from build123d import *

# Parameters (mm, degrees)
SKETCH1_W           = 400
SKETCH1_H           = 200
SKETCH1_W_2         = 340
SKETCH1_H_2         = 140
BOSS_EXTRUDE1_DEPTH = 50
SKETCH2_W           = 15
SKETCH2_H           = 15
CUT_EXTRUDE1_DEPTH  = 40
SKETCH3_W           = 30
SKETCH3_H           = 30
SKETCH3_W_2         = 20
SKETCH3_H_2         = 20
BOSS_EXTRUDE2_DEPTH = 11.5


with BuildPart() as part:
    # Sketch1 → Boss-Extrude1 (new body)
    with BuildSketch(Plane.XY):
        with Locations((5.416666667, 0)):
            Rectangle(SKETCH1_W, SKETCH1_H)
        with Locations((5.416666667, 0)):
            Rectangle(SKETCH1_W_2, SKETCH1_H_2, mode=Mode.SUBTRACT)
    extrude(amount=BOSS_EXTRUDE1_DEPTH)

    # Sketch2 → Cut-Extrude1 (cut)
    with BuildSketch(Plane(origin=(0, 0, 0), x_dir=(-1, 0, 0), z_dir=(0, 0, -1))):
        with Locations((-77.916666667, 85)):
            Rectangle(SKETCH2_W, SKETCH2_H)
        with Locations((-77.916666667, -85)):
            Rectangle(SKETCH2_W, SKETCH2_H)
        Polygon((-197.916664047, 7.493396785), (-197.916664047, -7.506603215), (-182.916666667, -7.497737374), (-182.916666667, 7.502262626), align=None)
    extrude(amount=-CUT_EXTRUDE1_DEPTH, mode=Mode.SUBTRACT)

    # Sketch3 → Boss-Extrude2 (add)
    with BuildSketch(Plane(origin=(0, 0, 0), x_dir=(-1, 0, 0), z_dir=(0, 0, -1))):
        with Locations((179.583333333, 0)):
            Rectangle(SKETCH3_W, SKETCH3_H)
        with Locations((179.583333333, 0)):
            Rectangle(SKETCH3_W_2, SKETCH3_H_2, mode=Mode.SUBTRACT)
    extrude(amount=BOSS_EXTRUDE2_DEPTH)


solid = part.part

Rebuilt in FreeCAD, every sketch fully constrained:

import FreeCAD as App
import Part
import Sketcher

V = App.Vector


def add_polygon(sketch, points):
    """Adds a closed chain of lines whose ends are joined by coincident constraints."""
    first, n = sketch.GeometryCount, len(points)
    for a, b in zip(points, points[1:] + points[:1]):
        sketch.addGeometry(Part.LineSegment(App.Vector(*a, 0), App.Vector(*b, 0)), False)
    for i in range(n):
        sketch.addConstraint(Sketcher.Constraint("Coincident", first + i, 2, first + (i + 1) % n, 1))

doc = App.newDocument("Part")
params = doc.addObject("Spreadsheet::Sheet", "Params")
for row, (alias, value) in enumerate([
    ("sketch1_width", "400 mm"),
    ("sketch1_width2", "340 mm"),
    ("sketch1_height", "200 mm"),
    ("sketch1_height2", "140 mm"),
    ("pad1_length", "50 mm"),
    ("sketch2_width", "15 mm"),
    ("sketch2_length", "15 mm"),
    ("pocket1_length", "40 mm"),
    ("sketch3_width", "30 mm"),
    ("sketch3_width2", "20 mm"),
    ("pad2_length", "11.5 mm"),
], start=1):
    params.set(f"A{row}", alias)
    params.set(f"B{row}", "=" + value)
    params.setAlias(f"B{row}", alias)

body = doc.addObject("PartDesign::Body", "Body")

sketch1 = body.newObject("Sketcher::SketchObject", "Sketch")
sketch1.AttachmentSupport = (doc.getObject("XY_Plane"), [""])
sketch1.MapMode = "FlatFace"
add_polygon(sketch1, [(-195, 100), (-195, -100), (205, -100), (205, 100)])
add_polygon(sketch1, [(175, -70), (-165, -70), (-165, 70), (175, 70)])
sketch1.addConstraint([
    Sketcher.Constraint("Vertical", 0),
    Sketcher.Constraint("Horizontal", 1),
    Sketcher.Constraint("Vertical", 2),
    Sketcher.Constraint("Horizontal", 3),
    Sketcher.Constraint("Horizontal", 4),
    Sketcher.Constraint("Vertical", 5),
    Sketcher.Constraint("Horizontal", 6),
    Sketcher.Constraint("Vertical", 7),
    Sketcher.Constraint("DistanceX", 1, 1, 1, 2, 400.0),
    Sketcher.Constraint("DistanceX", 4, 2, 4, 1, 340.0),
    Sketcher.Constraint("DistanceY", 0, 2, 0, 1, 200.0),
    Sketcher.Constraint("DistanceY", 5, 1, 5, 2, 140.0),
    Sketcher.Constraint("DistanceY", 0, 2, -1, 1, 100.0),
    Sketcher.Constraint("DistanceY", 4, 2, -1, 1, 70.0),
    Sketcher.Constraint("DistanceX", 0, 2, 4, 2, 30.0),
    Sketcher.Constraint("DistanceX", 0, 2, -1, 1, 194.583333),
])
sketch1.setExpression("Constraints[16]", "Params.sketch1_width")
sketch1.setExpression("Constraints[17]", "Params.sketch1_width2")
sketch1.setExpression("Constraints[18]", "Params.sketch1_height")
sketch1.setExpression("Constraints[19]", "Params.sketch1_height2")
pad1 = body.newObject("PartDesign::Pad", "Pad")
pad1.Profile = sketch1
pad1.setExpression("Length", "Params.pad1_length")

sketch2 = body.newObject("Sketcher::SketchObject", "Sketch001")
sketch2.AttachmentSupport = (doc.getObject("XY_Plane"), [""])
sketch2.MapMode = "FlatFace"
add_polygon(sketch2, [(85, 92), (85, 78), (70, 78), (70, 92)])
add_polygon(sketch2, [(85, -78), (85, -92), (70, -92), (70, -78)])
add_polygon(sketch2, [(198, 7), (198, -8), (183, -7), (183, 8)])
sketch2.addConstraint([
    Sketcher.Constraint("Vertical", 0),
    Sketcher.Constraint("Horizontal", 1),
    Sketcher.Constraint("Vertical", 2),
    Sketcher.Constraint("Horizontal", 3),
    Sketcher.Constraint("Vertical", 4),
    Sketcher.Constraint("Horizontal", 5),
    Sketcher.Constraint("Vertical", 6),
    Sketcher.Constraint("Horizontal", 7),
    Sketcher.Constraint("Vertical", 8),
    Sketcher.Constraint("Vertical", 10),
    Sketcher.Constraint("Symmetric", 3, 2, 4, 2, -1),
    Sketcher.Constraint("Symmetric", 1, 2, 6, 2, -1),
    Sketcher.Constraint("Parallel", 9, 11),
    Sketcher.Constraint("Equal", 7, 0),
    Sketcher.Constraint("Equal", 6, 8),
    Sketcher.Constraint("DistanceX", 1, 2, 1, 1, 15.0),
    Sketcher.Constraint("Distance", 9, 15.0),
    Sketcher.Constraint("DistanceY", 4, 2, 0, 2, 170.0),
    Sketcher.Constraint("DistanceX", 7, 2, 9, 2, 97.5),
    Sketcher.Constraint("DistanceX", -1, 1, 0, 2, 85.416667),
    Sketcher.Constraint("DistanceY", 8, 2, -1, 1, 7.506603),
    Sketcher.Constraint("DistanceY", 9, 2, -1, 1, 7.497737),
])
sketch2.setExpression("Constraints[27]", "Params.sketch2_width")
sketch2.setExpression("Constraints[28]", "Params.sketch2_length")
pocket1 = body.newObject("PartDesign::Pocket", "Pocket")
pocket1.Profile = sketch2
pocket1.setExpression("Length", "Params.pocket1_length")
pocket1.Reversed = True

sketch3 = body.newObject("Sketcher::SketchObject", "Sketch002")
sketch3.AttachmentSupport = (doc.getObject("XY_Plane"), [""])
sketch3.MapMode = "FlatFace"
add_polygon(sketch3, [(-165, 15), (-165, -15), (-195, -15), (-195, 15)])
add_polygon(sketch3, [(-190, -10), (-170, -10), (-170, 10), (-190, 10)])
sketch3.addConstraint([
    Sketcher.Constraint("Vertical", 0),
    Sketcher.Constraint("Horizontal", 1),
    Sketcher.Constraint("Vertical", 2),
    Sketcher.Constraint("Horizontal", 3),
    Sketcher.Constraint("Horizontal", 4),
    Sketcher.Constraint("Vertical", 5),
    Sketcher.Constraint("Horizontal", 6),
    Sketcher.Constraint("Vertical", 7),
    Sketcher.Constraint("Equal", 3, 0),
    Sketcher.Constraint("Equal", 6, 5),
    Sketcher.Constraint("DistanceX", 1, 2, 1, 1, 30.0),
    Sketcher.Constraint("DistanceX", 4, 1, 4, 2, 20.0),
    Sketcher.Constraint("DistanceY", 0, 2, -1, 1, 15.0),
    Sketcher.Constraint("DistanceY", 4, 2, -1, 1, 10.0),
    Sketcher.Constraint("DistanceX", 4, 2, 0, 2, 5.0),
    Sketcher.Constraint("DistanceX", 0, 2, -1, 1, 164.583333),
])
sketch3.setExpression("Constraints[18]", "Params.sketch3_width")
sketch3.setExpression("Constraints[19]", "Params.sketch3_width2")
pad2 = body.newObject("PartDesign::Pad", "Pad001")
pad2.Profile = sketch3
pad2.setExpression("Length", "Params.pad2_length")
pad2.Reversed = True

doc.recompute()
